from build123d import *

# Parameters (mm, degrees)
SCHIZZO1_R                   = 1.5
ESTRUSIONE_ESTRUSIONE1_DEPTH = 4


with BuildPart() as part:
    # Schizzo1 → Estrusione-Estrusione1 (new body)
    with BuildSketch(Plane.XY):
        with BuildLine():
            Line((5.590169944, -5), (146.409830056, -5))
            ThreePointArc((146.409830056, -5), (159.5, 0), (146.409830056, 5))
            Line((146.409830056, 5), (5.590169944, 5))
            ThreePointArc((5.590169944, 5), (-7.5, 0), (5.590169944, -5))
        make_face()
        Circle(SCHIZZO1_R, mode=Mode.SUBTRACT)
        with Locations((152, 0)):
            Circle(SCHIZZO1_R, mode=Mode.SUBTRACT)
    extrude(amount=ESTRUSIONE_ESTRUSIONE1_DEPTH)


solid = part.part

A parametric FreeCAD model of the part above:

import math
import FreeCAD as App
import Part
import Sketcher
Q = App.Units.Quantity

doc = App.newDocument("Part")
params = doc.addObject("Spreadsheet::Sheet", "Params")
for row, (alias, value) in enumerate([
    ("sketch1_diameter", "3 mm"),
    ("sketch1_radius", "7.5 mm"),
    ("pad1_length", "4 mm"),
], start=1):
    params.set(f"A{row}", alias)
    params.set(f"B{row}", "=" + value)
    params.setAlias(f"B{row}", alias)

body = doc.addObject("PartDesign::Body", "Body")

# Sketch on XY plane
sketch1 = body.newObject("Sketcher::SketchObject", "Sketch")
sketch1.AttachmentSupport = (doc.getObject("XY_Plane"), [""])
sketch1.MapMode = "FlatFace"
sketch1.addGeometry(Part.LineSegment(App.Vector(5.6, -5, 0), App.Vector(146.4, -5, 0)), False)
sketch1.addGeometry(Part.ArcOfCircle(Part.Circle(App.Vector(152, 0, 0), App.Vector(0, 0, 1), 7.5), math.radians(-138), math.radians(138)), False)
sketch1.addGeometry(Part.LineSegment(App.Vector(146.4, 5, 0), App.Vector(5.6, 5, 0)), False)
sketch1.addGeometry(Part.ArcOfCircle(Part.Circle(App.Vector(0, 0, 0), App.Vector(0, 0, 1), 7.5), math.radians(42), math.radians(318)), False)
sketch1.addGeometry(Part.Circle(App.Vector(0, 0, 0), App.Vector(0, 0, 1), 1.5), False)
sketch1.addGeometry(Part.Circle(App.Vector(152, 0, 0), App.Vector(0, 0, 1), 1.5), False)
sketch1.addConstraint(Sketcher.Constraint("Coincident", 0, 2, 1, 1))
sketch1.addConstraint(Sketcher.Constraint("Coincident", 1, 2, 2, 1))
sketch1.addConstraint(Sketcher.Constraint("Coincident", 2, 2, 3, 1))
sketch1.addConstraint(Sketcher.Constraint("Coincident", 3, 2, 0, 1))
sketch1.addConstraint(Sketcher.Constraint("Horizontal", 0))
sketch1.addConstraint(Sketcher.Constraint("Horizontal", 2))
sketch1.addConstraint(Sketcher.Constraint("Coincident", 3, 3, -1, 1))
sketch1.addConstraint(Sketcher.Constraint("Coincident", 4, 3, -1, 1))
sketch1.addConstraint(Sketcher.Constraint("Coincident", 5, 3, 1, 3))
sketch1.addConstraint(Sketcher.Constraint("Equal", 1, 3))
sketch1.addConstraint(Sketcher.Constraint("Equal", 4, 5))
sketch1.addConstraint(Sketcher.Constraint("Symmetric", 0, 2, 1, 2, -1))
sketch1.addConstraint(Sketcher.Constraint("Diameter", 4, Q("3 mm")))
sketch1.addConstraint(Sketcher.Constraint("Radius", 1, Q("7.5 mm")))
sketch1.addConstraint(Sketcher.Constraint("DistanceX", -1, 1, 1, 3, Q("152 mm")))
sketch1.addConstraint(Sketcher.Constraint("DistanceY", 0, 2, -1, 1, Q("5 mm")))
sketch1.setExpression("Constraints[12]", "Params.sketch1_diameter")
sketch1.setExpression("Constraints[13]", "Params.sketch1_radius")
pad1 = body.newObject("PartDesign::Pad", "Pad")
pad1.Profile = sketch1
pad1.setExpression("Length", "Params.pad1_length")

doc.recompute()
